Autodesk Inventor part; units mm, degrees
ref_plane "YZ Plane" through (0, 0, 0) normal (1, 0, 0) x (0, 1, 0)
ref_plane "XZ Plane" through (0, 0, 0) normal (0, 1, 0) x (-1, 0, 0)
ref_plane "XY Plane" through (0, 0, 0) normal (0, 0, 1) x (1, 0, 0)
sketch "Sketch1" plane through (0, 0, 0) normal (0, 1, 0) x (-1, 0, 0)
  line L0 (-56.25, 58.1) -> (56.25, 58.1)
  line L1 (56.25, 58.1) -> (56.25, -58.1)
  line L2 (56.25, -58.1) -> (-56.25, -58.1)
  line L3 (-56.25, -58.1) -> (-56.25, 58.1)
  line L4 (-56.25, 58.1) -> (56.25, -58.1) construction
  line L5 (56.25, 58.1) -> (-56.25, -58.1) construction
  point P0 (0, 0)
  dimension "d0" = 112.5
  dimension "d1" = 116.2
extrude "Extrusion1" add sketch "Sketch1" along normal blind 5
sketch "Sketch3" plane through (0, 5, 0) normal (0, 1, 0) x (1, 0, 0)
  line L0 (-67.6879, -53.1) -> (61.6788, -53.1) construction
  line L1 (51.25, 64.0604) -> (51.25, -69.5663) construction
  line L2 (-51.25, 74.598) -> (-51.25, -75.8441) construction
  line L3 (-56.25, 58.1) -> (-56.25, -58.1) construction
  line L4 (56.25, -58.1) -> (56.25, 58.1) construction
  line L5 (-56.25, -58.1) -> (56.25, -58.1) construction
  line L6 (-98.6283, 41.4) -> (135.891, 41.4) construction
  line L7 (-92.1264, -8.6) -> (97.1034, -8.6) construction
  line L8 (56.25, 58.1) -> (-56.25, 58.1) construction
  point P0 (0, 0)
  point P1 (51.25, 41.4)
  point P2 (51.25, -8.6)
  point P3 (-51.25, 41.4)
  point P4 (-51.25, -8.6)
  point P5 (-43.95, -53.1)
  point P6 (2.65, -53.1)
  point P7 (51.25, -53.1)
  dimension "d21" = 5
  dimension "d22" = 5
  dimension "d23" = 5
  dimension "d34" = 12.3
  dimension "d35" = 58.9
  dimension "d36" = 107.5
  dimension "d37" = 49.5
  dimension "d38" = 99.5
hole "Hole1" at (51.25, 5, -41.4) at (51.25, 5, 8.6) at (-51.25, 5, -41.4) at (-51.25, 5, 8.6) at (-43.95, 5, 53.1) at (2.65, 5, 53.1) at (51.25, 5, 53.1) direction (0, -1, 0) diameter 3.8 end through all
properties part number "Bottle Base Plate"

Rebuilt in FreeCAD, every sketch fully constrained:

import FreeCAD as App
import Part
import Sketcher
Q = App.Units.Quantity


def add_polygon(sketch, points):
    """Adds a closed chain of lines whose ends are joined by coincident constraints."""
    first, n = sketch.GeometryCount, len(points)
    for a, b in zip(points, points[1:] + points[:1]):
        sketch.addGeometry(Part.LineSegment(App.Vector(*a, 0), App.Vector(*b, 0)), False)
    for i in range(n):
        sketch.addConstraint(Sketcher.Constraint("Coincident", first + i, 2, first + (i + 1) % n, 1))

doc = App.newDocument("Part")
params = doc.addObject("Spreadsheet::Sheet", "Params")
for row, (alias, value) in enumerate([
    ("sketch1_width", "112.5 mm"),
    ("sketch1_height", "116.2 mm"),
    ("pad1_length", "5 mm"),
    ("sketch2_diameter", "3.8 mm"),
    ("hole_diameter", "3.8 mm"),
], start=1):
    params.set(f"A{row}", alias)
    params.set(f"B{row}", "=" + value)
    params.setAlias(f"B{row}", alias)

body = doc.addObject("PartDesign::Body", "Body")

# Sketch on XZ plane
sketch1 = body.newObject("Sketcher::SketchObject", "Sketch")
sketch1.AttachmentSupport = (doc.getObject("XZ_Plane"), [""])
sketch1.MapMode = "FlatFace"
add_polygon(sketch1, [(-56, 58), (56, 58), (56, -58), (-56, -58)])  # lines 0-3
sketch1.addConstraint([
    Sketcher.Constraint("Horizontal", 0),
    Sketcher.Constraint("Vertical", 1),
    Sketcher.Constraint("Horizontal", 2),
    Sketcher.Constraint("Vertical", 3),
    Sketcher.Constraint("Symmetric", 0, 2, 2, 2, -1, 1),
    Sketcher.Constraint("DistanceX", 0, 1, 0, 2, Q("112.5 mm")),
    Sketcher.Constraint("DistanceY", 1, 2, 1, 1, Q("116.2 mm")),
])
sketch1.setExpression("Constraints[9]", "Params.sketch1_width")
sketch1.setExpression("Constraints[10]", "Params.sketch1_height")
pad1 = body.newObject("PartDesign::Pad", "Pad")
pad1.Profile = sketch1
pad1.setExpression("Length", "Params.pad1_length")
pad1.Reversed = True

# Sketch on XZ plane
sketch2 = body.newObject("Sketcher::SketchObject", "Sketch001")
sketch2.AttachmentSupport = (doc.getObject("XZ_Plane"), [""])
sketch2.MapMode = "FlatFace"
sketch2.AttachmentOffset = App.Placement(App.Vector(0, 0, -5), App.Rotation())
sketch2.addGeometry([
    Part.Circle(App.Vector(51.2, -41.4, 0), App.Vector(0, 0, 1), 1.9),  # 0
    Part.Circle(App.Vector(51.2, 8.6, 0), App.Vector(0, 0, 1), 1.9),  # 1
    Part.Circle(App.Vector(-51.2, -41.4, 0), App.Vector(0, 0, 1), 1.9),  # 2
    Part.Circle(App.Vector(-51.2, 8.6, 0), App.Vector(0, 0, 1), 1.9),  # 3
    Part.Circle(App.Vector(-44, 53.1, 0), App.Vector(0, 0, 1), 1.9),  # 4
    Part.Circle(App.Vector(2.6, 53.1, 0), App.Vector(0, 0, 1), 1.9),  # 5
    Part.Circle(App.Vector(51.2, 53.1, 0), App.Vector(0, 0, 1), 1.9),  # 6
], False)
sketch2.addConstraint([
    Sketcher.Constraint("Equal", 0, 1),
    Sketcher.Constraint("Equal", 1, 2),
    Sketcher.Constraint("Equal", 2, 3),
    Sketcher.Constraint("Equal", 3, 4),
    Sketcher.Constraint("Equal", 4, 5),
    Sketcher.Constraint("Equal", 5, 6),
    Sketcher.Constraint("Symmetric", 0, 3, 2, 3, -2),
    Sketcher.Constraint("Symmetric", 1, 3, 3, 3, -2),
    Sketcher.Constraint("Horizontal", 4, 3, 5, 3),
    Sketcher.Constraint("Horizontal", 5, 3, 6, 3),
    Sketcher.Constraint("Vertical", 0, 3, 1, 3),
    Sketcher.Constraint("Vertical", 1, 3, 6, 3),
    Sketcher.Constraint("Diameter", 0, Q("3.8 mm")),
    Sketcher.Constraint("DistanceY", 0, 3, 1, 3, Q("50 mm")),
    Sketcher.Constraint("DistanceY", 0, 3, -1, 1, Q("41.4 mm")),
    Sketcher.Constraint("DistanceY", -1, 1, 4, 3, Q("53.1 mm")),
    Sketcher.Constraint("DistanceX", 2, 3, 0, 3, Q("102.5 mm")),
    Sketcher.Constraint("DistanceX", 3, 3, 4, 3, Q("7.3 mm")),
    Sketcher.Constraint("DistanceX", 4, 3, 5, 3, Q("46.6 mm")),
])
sketch2.setExpression("Constraints[12]", "Params.sketch2_diameter")
doc.recompute()
hole = body.newObject("PartDesign::Hole", "Hole")
hole.Profile = sketch2
hole.ThreadType = "None"
hole.setExpression("Diameter", "Params.hole_diameter")
hole.DepthType = "ThroughAll"
hole.Reversed = True

doc.recompute()
